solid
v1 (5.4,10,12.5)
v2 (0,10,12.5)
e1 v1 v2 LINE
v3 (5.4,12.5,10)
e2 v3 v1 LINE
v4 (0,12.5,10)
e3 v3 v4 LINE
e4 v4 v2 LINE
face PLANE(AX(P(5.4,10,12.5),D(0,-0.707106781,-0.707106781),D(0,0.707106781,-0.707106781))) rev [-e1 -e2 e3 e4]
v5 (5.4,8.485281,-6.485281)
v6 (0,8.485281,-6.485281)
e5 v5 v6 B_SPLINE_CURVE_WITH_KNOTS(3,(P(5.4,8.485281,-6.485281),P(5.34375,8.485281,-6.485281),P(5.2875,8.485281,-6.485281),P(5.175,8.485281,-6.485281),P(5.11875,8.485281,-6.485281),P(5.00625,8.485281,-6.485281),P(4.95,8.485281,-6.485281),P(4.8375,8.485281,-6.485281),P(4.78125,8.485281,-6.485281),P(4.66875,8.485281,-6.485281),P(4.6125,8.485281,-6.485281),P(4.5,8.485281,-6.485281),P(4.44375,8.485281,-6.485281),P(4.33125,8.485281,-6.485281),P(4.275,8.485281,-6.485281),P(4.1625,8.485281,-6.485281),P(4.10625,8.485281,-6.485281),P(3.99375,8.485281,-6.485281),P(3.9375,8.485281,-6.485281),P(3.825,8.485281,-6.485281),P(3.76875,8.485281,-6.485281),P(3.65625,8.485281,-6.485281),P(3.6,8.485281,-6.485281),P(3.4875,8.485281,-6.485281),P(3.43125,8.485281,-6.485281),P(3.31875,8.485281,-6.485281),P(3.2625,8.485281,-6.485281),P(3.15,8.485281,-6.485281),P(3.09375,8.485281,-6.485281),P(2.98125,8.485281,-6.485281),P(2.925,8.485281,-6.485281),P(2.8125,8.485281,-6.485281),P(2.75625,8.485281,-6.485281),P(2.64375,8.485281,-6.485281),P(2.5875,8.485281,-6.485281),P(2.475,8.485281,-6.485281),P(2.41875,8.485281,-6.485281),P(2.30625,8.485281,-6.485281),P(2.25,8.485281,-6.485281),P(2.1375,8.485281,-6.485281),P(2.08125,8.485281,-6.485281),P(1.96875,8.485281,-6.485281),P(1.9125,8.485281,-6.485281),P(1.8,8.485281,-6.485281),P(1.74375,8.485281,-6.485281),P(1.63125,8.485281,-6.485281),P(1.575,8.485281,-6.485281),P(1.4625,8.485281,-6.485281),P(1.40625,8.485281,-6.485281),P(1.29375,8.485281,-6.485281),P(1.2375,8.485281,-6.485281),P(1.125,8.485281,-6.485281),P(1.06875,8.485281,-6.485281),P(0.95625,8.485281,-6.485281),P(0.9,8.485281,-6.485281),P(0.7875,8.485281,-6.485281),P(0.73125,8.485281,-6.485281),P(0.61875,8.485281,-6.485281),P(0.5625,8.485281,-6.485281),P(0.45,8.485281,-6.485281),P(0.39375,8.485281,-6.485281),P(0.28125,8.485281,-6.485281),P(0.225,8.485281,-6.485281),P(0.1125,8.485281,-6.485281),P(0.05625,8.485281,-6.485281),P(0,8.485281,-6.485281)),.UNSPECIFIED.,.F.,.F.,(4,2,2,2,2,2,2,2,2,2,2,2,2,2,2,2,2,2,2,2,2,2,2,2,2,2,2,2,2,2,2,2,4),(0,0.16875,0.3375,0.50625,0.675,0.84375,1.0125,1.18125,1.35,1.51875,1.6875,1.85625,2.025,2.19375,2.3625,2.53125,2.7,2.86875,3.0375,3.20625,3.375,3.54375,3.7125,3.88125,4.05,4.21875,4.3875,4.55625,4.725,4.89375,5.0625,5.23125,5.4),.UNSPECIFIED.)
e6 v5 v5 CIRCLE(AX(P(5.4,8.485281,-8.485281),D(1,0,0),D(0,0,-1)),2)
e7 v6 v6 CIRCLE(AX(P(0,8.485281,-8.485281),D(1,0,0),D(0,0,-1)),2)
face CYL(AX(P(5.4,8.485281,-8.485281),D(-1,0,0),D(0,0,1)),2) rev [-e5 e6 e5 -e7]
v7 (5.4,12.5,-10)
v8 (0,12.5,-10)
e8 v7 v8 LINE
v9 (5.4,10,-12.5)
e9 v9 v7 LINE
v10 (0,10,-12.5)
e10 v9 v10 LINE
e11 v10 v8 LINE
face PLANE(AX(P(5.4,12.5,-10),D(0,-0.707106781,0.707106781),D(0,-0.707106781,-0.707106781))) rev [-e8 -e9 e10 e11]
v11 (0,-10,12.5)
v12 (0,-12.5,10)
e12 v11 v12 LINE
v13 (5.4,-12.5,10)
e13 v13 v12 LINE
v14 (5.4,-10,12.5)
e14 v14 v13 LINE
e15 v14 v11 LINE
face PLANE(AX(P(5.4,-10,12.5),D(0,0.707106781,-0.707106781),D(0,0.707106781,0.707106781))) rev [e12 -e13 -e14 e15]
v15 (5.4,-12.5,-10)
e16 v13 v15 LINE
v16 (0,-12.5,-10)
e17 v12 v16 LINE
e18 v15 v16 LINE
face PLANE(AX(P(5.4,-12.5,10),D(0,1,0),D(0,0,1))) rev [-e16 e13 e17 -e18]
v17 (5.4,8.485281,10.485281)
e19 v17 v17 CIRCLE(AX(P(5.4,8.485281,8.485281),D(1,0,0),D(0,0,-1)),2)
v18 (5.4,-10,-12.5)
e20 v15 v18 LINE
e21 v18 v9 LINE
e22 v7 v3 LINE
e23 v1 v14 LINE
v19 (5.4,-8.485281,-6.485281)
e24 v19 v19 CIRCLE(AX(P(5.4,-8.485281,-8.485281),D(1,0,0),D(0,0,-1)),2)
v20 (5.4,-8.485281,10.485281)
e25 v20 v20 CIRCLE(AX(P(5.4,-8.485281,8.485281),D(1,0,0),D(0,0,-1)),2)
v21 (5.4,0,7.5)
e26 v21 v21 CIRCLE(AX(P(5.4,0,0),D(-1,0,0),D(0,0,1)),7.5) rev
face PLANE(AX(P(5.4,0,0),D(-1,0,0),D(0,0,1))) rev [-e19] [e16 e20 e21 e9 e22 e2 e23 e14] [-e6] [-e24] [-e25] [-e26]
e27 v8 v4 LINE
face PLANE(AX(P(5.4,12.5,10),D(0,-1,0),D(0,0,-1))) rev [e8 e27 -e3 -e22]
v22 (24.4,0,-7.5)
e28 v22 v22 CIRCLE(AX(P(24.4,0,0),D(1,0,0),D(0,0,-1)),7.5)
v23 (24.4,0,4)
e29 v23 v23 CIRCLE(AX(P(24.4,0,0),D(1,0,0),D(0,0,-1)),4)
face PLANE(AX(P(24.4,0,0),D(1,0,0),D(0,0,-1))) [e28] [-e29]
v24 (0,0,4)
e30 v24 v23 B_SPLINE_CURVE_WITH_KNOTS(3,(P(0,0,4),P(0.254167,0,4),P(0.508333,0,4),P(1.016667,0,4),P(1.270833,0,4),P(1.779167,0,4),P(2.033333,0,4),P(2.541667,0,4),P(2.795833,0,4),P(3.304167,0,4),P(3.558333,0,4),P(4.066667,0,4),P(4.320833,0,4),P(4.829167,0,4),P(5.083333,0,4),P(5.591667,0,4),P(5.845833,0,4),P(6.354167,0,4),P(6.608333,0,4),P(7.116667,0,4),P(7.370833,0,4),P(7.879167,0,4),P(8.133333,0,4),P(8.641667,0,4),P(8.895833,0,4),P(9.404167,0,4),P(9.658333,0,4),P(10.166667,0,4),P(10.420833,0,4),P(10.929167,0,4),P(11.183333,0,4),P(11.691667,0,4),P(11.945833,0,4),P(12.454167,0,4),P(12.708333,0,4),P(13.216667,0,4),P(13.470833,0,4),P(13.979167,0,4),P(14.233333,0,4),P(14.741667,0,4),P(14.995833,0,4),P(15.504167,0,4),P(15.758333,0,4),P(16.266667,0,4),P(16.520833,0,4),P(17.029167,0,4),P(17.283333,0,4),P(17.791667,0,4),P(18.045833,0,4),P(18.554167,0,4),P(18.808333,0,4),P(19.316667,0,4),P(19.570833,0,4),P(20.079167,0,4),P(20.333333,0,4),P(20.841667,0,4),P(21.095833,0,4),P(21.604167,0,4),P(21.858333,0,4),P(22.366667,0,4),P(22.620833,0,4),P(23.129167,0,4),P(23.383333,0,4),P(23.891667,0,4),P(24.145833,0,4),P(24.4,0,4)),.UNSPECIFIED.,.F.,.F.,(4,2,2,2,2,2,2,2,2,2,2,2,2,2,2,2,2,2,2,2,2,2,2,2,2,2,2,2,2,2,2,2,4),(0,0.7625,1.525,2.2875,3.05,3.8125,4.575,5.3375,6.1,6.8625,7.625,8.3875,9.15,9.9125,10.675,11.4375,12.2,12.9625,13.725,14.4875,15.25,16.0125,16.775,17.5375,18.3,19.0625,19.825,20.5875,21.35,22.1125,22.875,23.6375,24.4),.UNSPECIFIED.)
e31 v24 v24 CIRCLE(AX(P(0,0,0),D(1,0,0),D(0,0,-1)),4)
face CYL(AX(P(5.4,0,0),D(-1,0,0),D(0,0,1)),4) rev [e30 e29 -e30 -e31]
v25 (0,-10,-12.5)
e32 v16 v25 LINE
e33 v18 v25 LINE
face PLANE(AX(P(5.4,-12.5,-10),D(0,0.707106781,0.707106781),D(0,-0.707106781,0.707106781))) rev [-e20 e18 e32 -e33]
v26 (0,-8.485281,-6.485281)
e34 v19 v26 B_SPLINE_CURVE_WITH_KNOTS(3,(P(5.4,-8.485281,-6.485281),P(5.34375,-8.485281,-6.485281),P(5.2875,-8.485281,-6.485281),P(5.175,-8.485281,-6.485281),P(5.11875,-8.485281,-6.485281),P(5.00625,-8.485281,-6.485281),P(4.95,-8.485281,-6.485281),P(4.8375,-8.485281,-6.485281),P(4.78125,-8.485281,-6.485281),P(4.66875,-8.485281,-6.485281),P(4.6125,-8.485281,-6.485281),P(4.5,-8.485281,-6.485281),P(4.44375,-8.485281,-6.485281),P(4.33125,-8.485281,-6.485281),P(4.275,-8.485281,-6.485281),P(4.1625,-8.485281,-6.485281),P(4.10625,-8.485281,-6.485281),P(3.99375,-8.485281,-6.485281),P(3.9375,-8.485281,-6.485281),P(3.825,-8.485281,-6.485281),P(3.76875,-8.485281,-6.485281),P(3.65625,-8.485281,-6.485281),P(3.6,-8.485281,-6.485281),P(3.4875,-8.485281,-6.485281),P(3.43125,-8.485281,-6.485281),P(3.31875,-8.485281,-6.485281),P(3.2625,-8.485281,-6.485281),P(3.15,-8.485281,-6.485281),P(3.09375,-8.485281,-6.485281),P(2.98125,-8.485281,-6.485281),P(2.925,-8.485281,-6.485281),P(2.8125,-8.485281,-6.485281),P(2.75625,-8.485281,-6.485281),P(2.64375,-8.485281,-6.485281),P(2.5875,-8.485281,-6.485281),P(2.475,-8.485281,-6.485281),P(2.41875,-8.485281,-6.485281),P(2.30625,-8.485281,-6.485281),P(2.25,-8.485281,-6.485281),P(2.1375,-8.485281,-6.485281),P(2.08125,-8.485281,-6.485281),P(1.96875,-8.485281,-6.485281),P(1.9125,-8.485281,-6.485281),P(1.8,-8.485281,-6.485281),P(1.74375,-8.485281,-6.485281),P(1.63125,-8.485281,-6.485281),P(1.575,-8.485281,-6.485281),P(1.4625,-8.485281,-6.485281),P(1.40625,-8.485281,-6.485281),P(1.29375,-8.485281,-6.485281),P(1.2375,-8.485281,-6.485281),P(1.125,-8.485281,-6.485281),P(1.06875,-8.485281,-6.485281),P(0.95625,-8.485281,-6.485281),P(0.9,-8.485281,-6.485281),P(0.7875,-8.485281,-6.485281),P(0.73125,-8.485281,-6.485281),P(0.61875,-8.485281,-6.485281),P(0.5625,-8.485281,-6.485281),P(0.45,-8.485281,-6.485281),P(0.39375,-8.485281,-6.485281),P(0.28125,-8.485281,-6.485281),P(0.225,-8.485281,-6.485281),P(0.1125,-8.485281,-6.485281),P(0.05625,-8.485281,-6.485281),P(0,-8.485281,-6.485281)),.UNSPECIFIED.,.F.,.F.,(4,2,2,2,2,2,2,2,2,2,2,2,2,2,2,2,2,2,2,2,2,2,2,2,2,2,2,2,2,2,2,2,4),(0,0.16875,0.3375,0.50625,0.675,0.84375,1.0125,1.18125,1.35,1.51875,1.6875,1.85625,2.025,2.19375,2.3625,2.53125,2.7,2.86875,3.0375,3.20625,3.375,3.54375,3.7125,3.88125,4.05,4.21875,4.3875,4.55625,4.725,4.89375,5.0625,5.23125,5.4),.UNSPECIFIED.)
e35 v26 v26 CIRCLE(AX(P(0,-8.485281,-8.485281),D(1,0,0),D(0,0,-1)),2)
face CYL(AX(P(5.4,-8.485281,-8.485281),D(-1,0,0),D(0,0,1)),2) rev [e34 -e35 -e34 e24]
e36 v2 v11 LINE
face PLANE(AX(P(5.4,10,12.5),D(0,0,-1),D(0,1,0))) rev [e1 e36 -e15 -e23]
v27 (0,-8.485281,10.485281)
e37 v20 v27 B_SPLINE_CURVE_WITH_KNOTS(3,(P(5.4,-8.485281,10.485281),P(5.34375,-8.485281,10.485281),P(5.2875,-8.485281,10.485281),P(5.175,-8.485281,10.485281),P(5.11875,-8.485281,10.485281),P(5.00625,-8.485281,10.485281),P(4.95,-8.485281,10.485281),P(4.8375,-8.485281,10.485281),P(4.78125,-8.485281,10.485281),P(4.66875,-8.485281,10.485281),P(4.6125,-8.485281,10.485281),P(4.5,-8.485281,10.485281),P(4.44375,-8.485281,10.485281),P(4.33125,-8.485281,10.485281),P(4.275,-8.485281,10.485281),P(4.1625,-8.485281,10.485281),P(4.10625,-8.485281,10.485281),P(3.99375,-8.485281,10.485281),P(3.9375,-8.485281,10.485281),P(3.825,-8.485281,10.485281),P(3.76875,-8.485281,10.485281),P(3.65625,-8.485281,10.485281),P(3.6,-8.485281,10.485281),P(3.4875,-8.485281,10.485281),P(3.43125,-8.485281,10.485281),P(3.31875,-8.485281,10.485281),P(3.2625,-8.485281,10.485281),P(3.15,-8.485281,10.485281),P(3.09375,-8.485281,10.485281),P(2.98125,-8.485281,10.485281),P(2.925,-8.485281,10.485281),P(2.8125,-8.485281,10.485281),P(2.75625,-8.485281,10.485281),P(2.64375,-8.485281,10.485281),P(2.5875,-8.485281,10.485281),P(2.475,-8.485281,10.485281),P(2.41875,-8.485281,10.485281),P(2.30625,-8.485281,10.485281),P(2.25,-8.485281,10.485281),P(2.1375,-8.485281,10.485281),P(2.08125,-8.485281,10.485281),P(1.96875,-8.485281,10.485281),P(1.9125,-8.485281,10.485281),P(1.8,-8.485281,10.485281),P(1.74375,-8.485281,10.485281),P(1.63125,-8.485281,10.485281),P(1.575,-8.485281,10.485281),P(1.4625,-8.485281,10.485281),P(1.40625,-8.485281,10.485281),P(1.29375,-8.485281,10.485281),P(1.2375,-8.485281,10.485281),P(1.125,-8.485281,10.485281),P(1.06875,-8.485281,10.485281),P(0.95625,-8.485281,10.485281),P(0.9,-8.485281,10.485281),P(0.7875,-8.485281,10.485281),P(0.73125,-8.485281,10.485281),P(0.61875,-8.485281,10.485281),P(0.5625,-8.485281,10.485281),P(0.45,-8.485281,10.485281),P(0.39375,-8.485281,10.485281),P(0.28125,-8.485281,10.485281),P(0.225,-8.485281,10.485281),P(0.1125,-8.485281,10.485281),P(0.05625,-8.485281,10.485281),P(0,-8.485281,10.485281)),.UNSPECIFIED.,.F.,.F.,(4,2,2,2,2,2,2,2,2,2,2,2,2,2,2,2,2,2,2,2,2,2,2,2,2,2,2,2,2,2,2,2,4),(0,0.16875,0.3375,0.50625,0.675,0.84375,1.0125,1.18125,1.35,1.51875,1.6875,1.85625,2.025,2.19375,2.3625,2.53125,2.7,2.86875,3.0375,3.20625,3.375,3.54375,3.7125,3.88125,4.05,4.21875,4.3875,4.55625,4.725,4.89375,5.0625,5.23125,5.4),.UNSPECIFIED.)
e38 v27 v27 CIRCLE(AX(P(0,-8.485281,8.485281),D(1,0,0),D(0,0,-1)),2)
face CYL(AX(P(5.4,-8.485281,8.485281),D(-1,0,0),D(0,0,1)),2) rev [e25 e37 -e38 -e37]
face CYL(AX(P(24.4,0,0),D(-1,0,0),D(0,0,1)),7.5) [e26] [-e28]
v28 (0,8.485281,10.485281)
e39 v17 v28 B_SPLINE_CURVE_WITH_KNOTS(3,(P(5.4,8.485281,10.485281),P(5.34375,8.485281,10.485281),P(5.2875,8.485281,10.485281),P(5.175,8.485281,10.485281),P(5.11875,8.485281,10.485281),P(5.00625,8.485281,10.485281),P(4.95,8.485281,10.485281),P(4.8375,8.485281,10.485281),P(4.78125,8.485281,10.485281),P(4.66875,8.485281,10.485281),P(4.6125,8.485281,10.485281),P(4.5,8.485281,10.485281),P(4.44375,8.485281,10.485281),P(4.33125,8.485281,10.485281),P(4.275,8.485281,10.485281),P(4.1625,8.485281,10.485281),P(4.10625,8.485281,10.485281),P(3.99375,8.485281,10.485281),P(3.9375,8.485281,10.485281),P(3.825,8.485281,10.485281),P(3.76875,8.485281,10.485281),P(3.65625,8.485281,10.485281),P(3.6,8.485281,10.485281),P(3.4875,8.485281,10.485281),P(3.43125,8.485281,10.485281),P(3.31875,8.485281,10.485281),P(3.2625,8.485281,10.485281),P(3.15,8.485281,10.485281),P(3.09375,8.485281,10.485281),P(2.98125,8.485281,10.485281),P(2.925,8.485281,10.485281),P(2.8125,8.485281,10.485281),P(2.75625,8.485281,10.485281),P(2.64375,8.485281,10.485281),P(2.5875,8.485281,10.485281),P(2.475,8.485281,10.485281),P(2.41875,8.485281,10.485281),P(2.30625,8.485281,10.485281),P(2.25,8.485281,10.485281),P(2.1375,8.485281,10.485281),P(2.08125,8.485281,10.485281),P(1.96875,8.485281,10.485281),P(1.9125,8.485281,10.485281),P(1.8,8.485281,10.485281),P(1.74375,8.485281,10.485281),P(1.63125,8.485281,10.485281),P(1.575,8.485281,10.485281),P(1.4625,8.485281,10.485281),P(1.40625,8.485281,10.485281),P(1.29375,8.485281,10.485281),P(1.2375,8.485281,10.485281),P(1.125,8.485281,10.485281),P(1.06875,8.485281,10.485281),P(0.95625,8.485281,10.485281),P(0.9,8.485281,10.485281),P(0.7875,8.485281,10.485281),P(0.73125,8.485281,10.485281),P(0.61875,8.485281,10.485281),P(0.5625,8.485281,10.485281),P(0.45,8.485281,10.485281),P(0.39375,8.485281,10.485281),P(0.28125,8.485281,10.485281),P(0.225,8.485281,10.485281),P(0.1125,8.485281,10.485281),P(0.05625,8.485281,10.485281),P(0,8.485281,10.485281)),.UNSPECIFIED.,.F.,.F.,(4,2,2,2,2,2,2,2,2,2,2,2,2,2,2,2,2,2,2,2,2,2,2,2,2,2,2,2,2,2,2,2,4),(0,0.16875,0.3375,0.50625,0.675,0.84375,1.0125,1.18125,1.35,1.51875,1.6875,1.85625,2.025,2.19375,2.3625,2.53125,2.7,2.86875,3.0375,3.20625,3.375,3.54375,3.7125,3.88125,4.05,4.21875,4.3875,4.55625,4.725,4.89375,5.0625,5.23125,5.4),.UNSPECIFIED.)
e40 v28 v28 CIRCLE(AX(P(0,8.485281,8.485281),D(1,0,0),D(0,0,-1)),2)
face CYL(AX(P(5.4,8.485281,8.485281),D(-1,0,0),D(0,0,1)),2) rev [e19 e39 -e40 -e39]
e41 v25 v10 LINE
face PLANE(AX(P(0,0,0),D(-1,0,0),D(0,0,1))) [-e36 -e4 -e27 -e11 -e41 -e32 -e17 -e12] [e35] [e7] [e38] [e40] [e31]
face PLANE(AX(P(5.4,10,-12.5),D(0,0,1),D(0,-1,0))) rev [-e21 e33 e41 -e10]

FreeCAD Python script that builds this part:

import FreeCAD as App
import Part
import Sketcher
Q = App.Units.Quantity


def add_polygon(sketch, points):
    """Adds a closed chain of lines whose ends are joined by coincident constraints."""
    first, n = sketch.GeometryCount, len(points)
    for a, b in zip(points, points[1:] + points[:1]):
        sketch.addGeometry(Part.LineSegment(App.Vector(*a, 0), App.Vector(*b, 0)), False)
    for i in range(n):
        sketch.addConstraint(Sketcher.Constraint("Coincident", first + i, 2, first + (i + 1) % n, 1))

doc = App.newDocument("Part")
body = doc.addObject("PartDesign::Body", "Body")

sketch1 = doc.addObject("Sketcher::SketchObject", "Sketch")
body.addObject(sketch1)
sketch1.AttachmentSupport = (doc.YZ_Plane, [""])
sketch1.MapMode = "FlatFace"
add_polygon(sketch1, [(12.5, 10), (10, 12.5), (-10, 12.5), (-12.5, 10), (-12.5, -10), (-10, -12.5), (10, -12.5), (12.5, -10)])
sketch1.addGeometry(Part.Circle(App.Vector(-8.5, -8.5, 0), App.Vector(0, 0, 1), 2), False)
sketch1.addGeometry(Part.Circle(App.Vector(-8.5, 8.5, 0), App.Vector(0, 0, 1), 2), False)
sketch1.addGeometry(Part.Circle(App.Vector(8.5, -8.5, 0), App.Vector(0, 0, 1), 2), False)
sketch1.addGeometry(Part.Circle(App.Vector(0, 0, 0), App.Vector(0, 0, 1), 4), False)
sketch1.addGeometry(Part.Circle(App.Vector(8.5, 8.5, 0), App.Vector(0, 0, 1), 2), False)
sketch1.addConstraint([
    Sketcher.Constraint("Horizontal", 1),
    Sketcher.Constraint("Vertical", 3),
    Sketcher.Constraint("Horizontal", 5),
    Sketcher.Constraint("Vertical", 7),
    Sketcher.Constraint("Coincident", 11, 3, -1, 1),
    Sketcher.Constraint("Equal", 8, 9),
    Sketcher.Constraint("Equal", 9, 10),
    Sketcher.Constraint("Equal", 10, 12),
    Sketcher.Constraint("Symmetric", 9, 3, 10, 3, -1, 1),
    Sketcher.Constraint("Symmetric", 8, 3, 12, 3, -1, 1),
    Sketcher.Constraint("Symmetric", 0, 2, 4, 2, -1, 1),
    Sketcher.Constraint("Symmetric", 2, 2, 6, 2, -1, 1),
    Sketcher.Constraint("Symmetric", 8, 3, 10, 3, -2),
    Sketcher.Constraint("Perpendicular", 0, 2),
    Sketcher.Constraint("Perpendicular", 2, 4),
    Sketcher.Constraint("Perpendicular", 4, 6),
    Sketcher.Constraint("Horizontal", 3, 2, 6, 2),
    Sketcher.Constraint("Vertical", 1, 2, 4, 2),
    Sketcher.Constraint("Equal", 5, 3),
    Sketcher.Constraint("Diameter", 8, Q("4 mm")),
    Sketcher.Constraint("Diameter", 11, Q("8 mm")),
    Sketcher.Constraint("DistanceX", 1, 2, 1, 1, Q("20 mm")),
    Sketcher.Constraint("DistanceY", -1, 1, 0, 2, Q("12.5 mm")),
    Sketcher.Constraint("DistanceX", 8, 3, -1, 1, Q("8.485281 mm")),
    Sketcher.Constraint("DistanceY", 8, 3, -1, 1, Q("8.485281 mm")),
])
pad1 = doc.addObject("PartDesign::Pad", "Pad")
body.addObject(pad1)
pad1.Profile = sketch1
pad1.Length = 5.4

sketch2 = doc.addObject("Sketcher::SketchObject", "Sketch001")
body.addObject(sketch2)
sketch2.AttachmentSupport = (doc.YZ_Plane, [""])
sketch2.MapMode = "FlatFace"
sketch2.AttachmentOffset = App.Placement(App.Vector(0, 0, 5.4), App.Rotation())
sketch2.addGeometry([
    Part.Circle(App.Vector(0, 0, 0), App.Vector(0, 0, 1), 7.5),
    Part.Circle(App.Vector(0, 0, 0), App.Vector(0, 0, 1), 4),
], False)
sketch2.addConstraint([
    Sketcher.Constraint("Coincident", 0, 3, -1, 1),
    Sketcher.Constraint("Coincident", 1, 3, -1, 1),
    Sketcher.Constraint("Diameter", 0, Q("15 mm")),
    Sketcher.Constraint("Diameter", 1, Q("8 mm")),
])
pad2 = doc.addObject("PartDesign::Pad", "Pad001")
body.addObject(pad2)
pad2.Profile = sketch2
pad2.Length = 19

doc.recompute()
